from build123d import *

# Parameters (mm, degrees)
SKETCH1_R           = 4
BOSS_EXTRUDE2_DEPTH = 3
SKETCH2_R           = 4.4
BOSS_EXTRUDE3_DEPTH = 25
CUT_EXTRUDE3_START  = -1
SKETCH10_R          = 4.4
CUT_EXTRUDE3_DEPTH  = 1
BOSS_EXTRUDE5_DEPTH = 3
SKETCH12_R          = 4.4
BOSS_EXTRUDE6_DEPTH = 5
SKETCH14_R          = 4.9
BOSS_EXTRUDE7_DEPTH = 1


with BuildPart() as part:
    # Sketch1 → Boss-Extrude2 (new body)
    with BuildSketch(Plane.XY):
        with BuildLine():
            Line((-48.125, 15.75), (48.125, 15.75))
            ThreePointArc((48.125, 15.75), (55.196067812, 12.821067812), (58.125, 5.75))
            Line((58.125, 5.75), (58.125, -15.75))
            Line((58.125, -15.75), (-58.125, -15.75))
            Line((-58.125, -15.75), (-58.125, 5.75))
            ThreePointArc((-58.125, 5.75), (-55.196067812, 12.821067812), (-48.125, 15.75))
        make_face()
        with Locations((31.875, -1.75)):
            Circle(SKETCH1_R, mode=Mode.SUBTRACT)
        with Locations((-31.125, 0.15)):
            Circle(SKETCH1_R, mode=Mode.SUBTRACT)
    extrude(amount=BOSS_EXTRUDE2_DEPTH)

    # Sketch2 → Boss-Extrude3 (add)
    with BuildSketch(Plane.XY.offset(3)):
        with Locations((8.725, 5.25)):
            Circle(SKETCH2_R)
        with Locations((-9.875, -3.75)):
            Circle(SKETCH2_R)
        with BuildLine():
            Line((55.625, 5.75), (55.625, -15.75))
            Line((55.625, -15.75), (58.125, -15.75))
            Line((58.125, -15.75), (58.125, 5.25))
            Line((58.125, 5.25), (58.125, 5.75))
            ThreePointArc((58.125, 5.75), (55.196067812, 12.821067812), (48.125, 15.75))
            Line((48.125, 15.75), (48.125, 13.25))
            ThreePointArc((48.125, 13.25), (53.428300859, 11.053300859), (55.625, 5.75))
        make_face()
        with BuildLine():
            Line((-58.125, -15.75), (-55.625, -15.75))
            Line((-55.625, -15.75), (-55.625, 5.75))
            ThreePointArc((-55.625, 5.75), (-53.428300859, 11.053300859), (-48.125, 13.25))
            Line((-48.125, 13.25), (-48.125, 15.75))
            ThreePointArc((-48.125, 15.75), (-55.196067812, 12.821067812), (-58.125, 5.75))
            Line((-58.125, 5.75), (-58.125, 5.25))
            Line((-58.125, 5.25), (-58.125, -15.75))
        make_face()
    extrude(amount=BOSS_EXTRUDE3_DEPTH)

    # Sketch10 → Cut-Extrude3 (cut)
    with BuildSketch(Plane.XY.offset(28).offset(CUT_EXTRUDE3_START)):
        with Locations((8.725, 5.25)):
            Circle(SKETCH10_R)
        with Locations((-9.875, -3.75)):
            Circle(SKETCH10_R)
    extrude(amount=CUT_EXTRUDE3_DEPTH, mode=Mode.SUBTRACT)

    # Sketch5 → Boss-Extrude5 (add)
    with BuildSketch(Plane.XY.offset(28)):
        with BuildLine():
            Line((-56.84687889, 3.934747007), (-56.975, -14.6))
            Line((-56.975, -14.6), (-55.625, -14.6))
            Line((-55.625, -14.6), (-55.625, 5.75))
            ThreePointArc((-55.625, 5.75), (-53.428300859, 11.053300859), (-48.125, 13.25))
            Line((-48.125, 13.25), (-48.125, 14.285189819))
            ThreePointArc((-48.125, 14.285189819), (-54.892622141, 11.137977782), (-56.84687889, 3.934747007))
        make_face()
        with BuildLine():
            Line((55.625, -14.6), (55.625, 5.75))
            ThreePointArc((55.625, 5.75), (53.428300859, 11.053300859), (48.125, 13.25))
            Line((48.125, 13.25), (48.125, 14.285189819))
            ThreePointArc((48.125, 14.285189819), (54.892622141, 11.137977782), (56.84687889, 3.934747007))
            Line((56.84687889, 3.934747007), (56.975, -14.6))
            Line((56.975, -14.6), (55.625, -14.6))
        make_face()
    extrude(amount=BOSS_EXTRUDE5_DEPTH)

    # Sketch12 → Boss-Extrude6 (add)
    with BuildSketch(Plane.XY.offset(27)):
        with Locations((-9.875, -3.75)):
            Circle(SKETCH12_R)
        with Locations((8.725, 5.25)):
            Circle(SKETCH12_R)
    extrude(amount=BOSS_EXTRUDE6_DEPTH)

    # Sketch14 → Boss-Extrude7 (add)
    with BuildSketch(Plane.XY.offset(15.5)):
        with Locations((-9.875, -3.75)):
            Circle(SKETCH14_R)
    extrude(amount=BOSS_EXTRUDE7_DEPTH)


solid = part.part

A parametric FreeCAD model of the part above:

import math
import FreeCAD as App
import Part
import Sketcher
from FreeCAD import Vector
Q = App.Units.Quantity

doc = App.newDocument("Part")
body = doc.addObject("PartDesign::Body", "Body")

sketch1 = doc.addObject("Sketcher::SketchObject", "Sketch")
body.addObject(sketch1)
sketch1.AttachmentSupport = (doc.XY_Plane, [""])
sketch1.MapMode = "FlatFace"
sketch1.addGeometry([
    Part.LineSegment(Vector(48.125, 15.75, 0), Vector(-48.125, 15.75, 0)),
    Part.ArcOfCircle(Part.Circle(Vector(-48.125, 5.75, 0), Vector(0, 0, 1), 10), math.radians(90), math.radians(180)),
    Part.LineSegment(Vector(-58.125, 5.75, 0), Vector(-58.125, -15.75, 0)),
    Part.LineSegment(Vector(-58.125, -15.75, 0), Vector(58.125, -15.75, 0)),
    Part.LineSegment(Vector(58.125, -15.75, 0), Vector(58.125, 5.75, 0)),
    Part.ArcOfCircle(Part.Circle(Vector(48.125, 5.75, 0), Vector(0, 0, 1), 10), math.radians(0), math.radians(90)),
    Part.Circle(Vector(31.875, -1.75, 0), Vector(0, 0, 1), 4),
    Part.Circle(Vector(-31.125, 0.15, 0), Vector(0, 0, 1), 4),
], False)
sketch1.addConstraint([
    Sketcher.Constraint("Tangent", 0, 2, 1, 1),
    Sketcher.Constraint("Tangent", 1, 2, 2, 1),
    Sketcher.Constraint("Coincident", 2, 2, 3, 1),
    Sketcher.Constraint("Coincident", 3, 2, 4, 1),
    Sketcher.Constraint("Tangent", 4, 2, 5, 1),
    Sketcher.Constraint("Tangent", 5, 2, 0, 1),
    Sketcher.Constraint("Horizontal", 0),
    Sketcher.Constraint("Vertical", 2),
    Sketcher.Constraint("Horizontal", 3),
    Sketcher.Constraint("Vertical", 4),
    Sketcher.Constraint("Equal", 1, 5),
    Sketcher.Constraint("Equal", 6, 7),
    Sketcher.Constraint("Diameter", 6, Q("8 mm")),
    Sketcher.Constraint("Radius", 1, Q("10 mm")),
    Sketcher.Constraint("DistanceY", 2, 2, 2, 1, Q("21.5 mm")),
    Sketcher.Constraint("DistanceX", 1, 3, 6, 3, Q("80 mm")),
    Sketcher.Constraint("DistanceX", 1, 3, 7, 3, Q("17 mm")),
    Sketcher.Constraint("DistanceY", 2, 2, 6, 3, Q("14 mm")),
    Sketcher.Constraint("DistanceX", 0, 2, 0, 1, Q("96.25 mm")),
    Sketcher.Constraint("DistanceY", 7, 3, 1, 3, Q("5.6 mm")),
    Sketcher.Constraint("DistanceY", -1, 1, 1, 3, Q("5.75 mm")),
    Sketcher.Constraint("DistanceX", 1, 3, -1, 1, Q("48.125 mm")),
])
pad1 = doc.addObject("PartDesign::Pad", "Pad")
body.addObject(pad1)
pad1.Profile = sketch1
pad1.Length = 3

sketch2 = doc.addObject("Sketcher::SketchObject", "Sketch001")
body.addObject(sketch2)
sketch2.AttachmentSupport = (doc.XY_Plane, [""])
sketch2.MapMode = "FlatFace"
sketch2.AttachmentOffset = App.Placement(Vector(0, 0, 3), App.Rotation())
sketch2.addGeometry([
    Part.Circle(Vector(8.725, 5.25, 0), Vector(0, 0, 1), 4.4),
    Part.Circle(Vector(-9.875, -3.75, 0), Vector(0, 0, 1), 4.4),
    Part.LineSegment(Vector(55.625, 5.75, 0), Vector(55.625, -15.75, 0)),
    Part.LineSegment(Vector(55.625, -15.75, 0), Vector(58.125, -15.75, 0)),
    Part.LineSegment(Vector(58.125, -15.75, 0), Vector(58.125, 5.75, 0)),
    Part.ArcOfCircle(Part.Circle(Vector(48.125, 5.75, 0), Vector(0, 0, 1), 10), math.radians(0), math.radians(90)),
    Part.LineSegment(Vector(48.125, 15.75, 0), Vector(48.125, 13.25, 0)),
    Part.ArcOfCircle(Part.Circle(Vector(48.125, 5.75, 0), Vector(0, 0, 1), 7.5), math.radians(0), math.radians(90)),
    Part.LineSegment(Vector(-58.125, -15.75, 0), Vector(-55.625, -15.75, 0)),
    Part.LineSegment(Vector(-55.625, -15.75, 0), Vector(-55.625, 5.75, 0)),
    Part.ArcOfCircle(Part.Circle(Vector(-48.125, 5.75, 0), Vector(0, 0, 1), 7.5), math.radians(90), math.radians(180)),
    Part.LineSegment(Vector(-48.125, 13.25, 0), Vector(-48.125, 15.75, 0)),
    Part.ArcOfCircle(Part.Circle(Vector(-48.125, 5.75, 0), Vector(0, 0, 1), 10), math.radians(90), math.radians(180)),
    Part.LineSegment(Vector(-58.125, 5.75, 0), Vector(-58.125, -15.75, 0)),
], False)
sketch2.addConstraint([
    Sketcher.Constraint("Coincident", 2, 2, 3, 1),
    Sketcher.Constraint("Coincident", 3, 2, 4, 1),
    Sketcher.Constraint("Tangent", 4, 2, 5, 1),
    Sketcher.Constraint("Coincident", 5, 2, 6, 1),
    Sketcher.Constraint("Coincident", 6, 2, 7, 2),
    Sketcher.Constraint("Tangent", 7, 1, 2, 1),
    Sketcher.Constraint("Coincident", 8, 2, 9, 1),
    Sketcher.Constraint("Tangent", 9, 2, 10, 2),
    Sketcher.Constraint("Coincident", 10, 1, 11, 1),
    Sketcher.Constraint("Coincident", 11, 2, 12, 1),
    Sketcher.Constraint("Tangent", 12, 2, 13, 1),
    Sketcher.Constraint("Coincident", 13, 2, 8, 1),
    Sketcher.Constraint("Vertical", 2),
    Sketcher.Constraint("Horizontal", 3),
    Sketcher.Constraint("Vertical", 4),
    Sketcher.Constraint("Vertical", 6),
    Sketcher.Constraint("Horizontal", 8),
    Sketcher.Constraint("Vertical", 9),
    Sketcher.Constraint("Vertical", 11),
    Sketcher.Constraint("Vertical", 13),
    Sketcher.Constraint("Coincident", 7, 3, 5, 3),
    Sketcher.Constraint("Coincident", 12, 3, 10, 3),
    Sketcher.Constraint("Equal", 0, 1),
    Sketcher.Constraint("Equal", 7, 10),
    Sketcher.Constraint("Equal", 5, 12),
    Sketcher.Constraint("Symmetric", 5, 3, 10, 3, -2),
    Sketcher.Constraint("Horizontal", 3, 2, 8, 2),
    Sketcher.Constraint("Vertical", 7, 3, 5, 2),
    Sketcher.Constraint("Vertical", 12, 3, 10, 1),
    Sketcher.Constraint("Radius", 5, Q("10 mm")),
    Sketcher.Constraint("Diameter", 0, Q("8.8 mm")),
    Sketcher.Constraint("Radius", 7, Q("7.5 mm")),
    Sketcher.Constraint("DistanceY", 2, 2, 2, 1, Q("21.5 mm")),
    Sketcher.Constraint("DistanceY", 1, 3, 0, 3, Q("9 mm")),
    Sketcher.Constraint("DistanceX", 1, 3, 5, 3, Q("58 mm")),
    Sketcher.Constraint("DistanceY", 2, 2, 0, 3, Q("21 mm")),
    Sketcher.Constraint("DistanceX", 1, 3, 0, 3, Q("18.6 mm")),
    Sketcher.Constraint("DistanceY", -1, 1, 0, 3, Q("5.25 mm")),
    Sketcher.Constraint("DistanceX", 10, 3, 1, 3, Q("38.25 mm")),
])
pad2 = doc.addObject("PartDesign::Pad", "Pad001")
body.addObject(pad2)
pad2.Profile = sketch2
pad2.Length = 25

sketch3 = doc.addObject("Sketcher::SketchObject", "Sketch002")
body.addObject(sketch3)
sketch3.AttachmentSupport = (doc.XY_Plane, [""])
sketch3.MapMode = "FlatFace"
sketch3.AttachmentOffset = App.Placement(Vector(0, 0, 27), App.Rotation())
sketch3.addGeometry([
    Part.Circle(Vector(8.725, 5.25, 0), Vector(0, 0, 1), 4.4),
    Part.Circle(Vector(-9.875, -3.75, 0), Vector(0, 0, 1), 4.4),
], False)
sketch3.addConstraint([
    Sketcher.Constraint("Equal", 0, 1),
    Sketcher.Constraint("Diameter", 0, Q("8.8 mm")),
    Sketcher.Constraint("DistanceY", 1, 3, 0, 3, Q("9 mm")),
    Sketcher.Constraint("DistanceX", 1, 3, 0, 3, Q("18.6 mm")),
    Sketcher.Constraint("DistanceY", -1, 1, 0, 3, Q("5.25 mm")),
    Sketcher.Constraint("DistanceX", -1, 1, 0, 3, Q("8.725 mm")),
])
pocket1 = doc.addObject("PartDesign::Pocket", "Pocket")
body.addObject(pocket1)
pocket1.Profile = sketch3
pocket1.Length = 1
pocket1.Reversed = True

sketch4 = doc.addObject("Sketcher::SketchObject", "Sketch003")
body.addObject(sketch4)
sketch4.AttachmentSupport = (doc.XY_Plane, [""])
sketch4.MapMode = "FlatFace"
sketch4.AttachmentOffset = App.Placement(Vector(0, 0, 28), App.Rotation())
sketch4.addGeometry([
    Part.LineSegment(Vector(-56.846879, 3.934747, 0), Vector(-56.975, -14.6, 0)),
    Part.LineSegment(Vector(-56.975, -14.6, 0), Vector(-55.625, -14.6, 0)),
    Part.LineSegment(Vector(-55.625, -14.6, 0), Vector(-55.625, 5.75, 0)),
    Part.ArcOfCircle(Part.Circle(Vector(-48.125, 5.75, 0), Vector(0, 0, 1), 7.5), math.radians(90), math.radians(180)),
    Part.LineSegment(Vector(-48.125, 13.25, 0), Vector(-48.125, 14.28519, 0)),
    Part.ArcOfCircle(Part.Circle(Vector(-48.125, 5.43519, 0), Vector(0, 0, 1), 8.85), math.radians(90), math.radians(189.761165)),
    Part.LineSegment(Vector(55.625, 5.75, 0), Vector(55.625, -14.6, 0)),
    Part.LineSegment(Vector(55.625, -14.6, 0), Vector(56.975, -14.6, 0)),
    Part.LineSegment(Vector(56.975, -14.6, 0), Vector(56.846879, 3.934747, 0)),
    Part.ArcOfCircle(Part.Circle(Vector(48.125, 5.43519, 0), Vector(0, 0, 1), 8.85), math.radians(-9.761165), math.radians(90)),
    Part.LineSegment(Vector(48.125, 14.28519, 0), Vector(48.125, 13.25, 0)),
    Part.ArcOfCircle(Part.Circle(Vector(48.125, 5.75, 0), Vector(0, 0, 1), 7.5), math.radians(0), math.radians(90)),
], False)
sketch4.addConstraint([
    Sketcher.Constraint("Coincident", 0, 2, 1, 1),
    Sketcher.Constraint("Coincident", 1, 2, 2, 1),
    Sketcher.Constraint("Tangent", 2, 2, 3, 2),
    Sketcher.Constraint("Coincident", 3, 1, 4, 1),
    Sketcher.Constraint("Coincident", 4, 2, 5, 1),
    Sketcher.Constraint("Coincident", 5, 2, 0, 1),
    Sketcher.Constraint("Coincident", 6, 2, 7, 1),
    Sketcher.Constraint("Coincident", 7, 2, 8, 1),
    Sketcher.Constraint("Coincident", 8, 2, 9, 1),
    Sketcher.Constraint("Coincident", 9, 2, 10, 1),
    Sketcher.Constraint("Coincident", 10, 2, 11, 2),
    Sketcher.Constraint("Tangent", 11, 1, 6, 1),
    Sketcher.Constraint("Horizontal", 1),
    Sketcher.Constraint("Vertical", 2),
    Sketcher.Constraint("Vertical", 4),
    Sketcher.Constraint("Vertical", 6),
    Sketcher.Constraint("Horizontal", 7),
    Sketcher.Constraint("Vertical", 10),
    Sketcher.Constraint("Equal", 5, 9),
    Sketcher.Constraint("Equal", 3, 11),
    Sketcher.Constraint("Symmetric", 5, 3, 9, 3, -2),
    Sketcher.Constraint("Symmetric", 3, 3, 11, 3, -2),
    Sketcher.Constraint("Symmetric", 0, 2, 7, 2, -2),
    Sketcher.Constraint("Horizontal", 5, 2, 8, 2),
    Sketcher.Constraint("Vertical", 3, 3, 5, 3),
    Sketcher.Constraint("Vertical", 5, 3, 3, 1),
    Sketcher.Constraint("Vertical", 11, 3, 9, 2),
    Sketcher.Constraint("Radius", 3, Q("7.5 mm")),
    Sketcher.Constraint("Radius", 5, Q("8.85 mm")),
    Sketcher.Constraint("DistanceX", 1, 1, 1, 2, Q("1.35 mm")),
    Sketcher.Constraint("DistanceY", 2, 1, 2, 2, Q("20.35 mm")),
    Sketcher.Constraint("DistanceY", 0, 2, -1, 1, Q("14.6 mm")),
    Sketcher.Constraint("DistanceX", 0, 2, 9, 3, Q("105.1 mm")),
    Sketcher.Constraint("DistanceY", 4, 1, 4, 2, Q("1.03519 mm")),
    Sketcher.Constraint("Distance", 0, Q("18.53519 mm")),
])
pad3 = doc.addObject("PartDesign::Pad", "Pad002")
body.addObject(pad3)
pad3.Profile = sketch4
pad3.Length = 3

sketch5 = doc.addObject("Sketcher::SketchObject", "Sketch004")
body.addObject(sketch5)
sketch5.AttachmentSupport = (doc.XY_Plane, [""])
sketch5.MapMode = "FlatFace"
sketch5.AttachmentOffset = App.Placement(Vector(0, 0, 27), App.Rotation())
sketch5.addGeometry([
    Part.Circle(Vector(-9.875, -3.75, 0), Vector(0, 0, 1), 4.4),
    Part.Circle(Vector(8.725, 5.25, 0), Vector(0, 0, 1), 4.4),
], False)
sketch5.addConstraint([
    Sketcher.Constraint("Equal", 0, 1),
    Sketcher.Constraint("Diameter", 0, Q("8.8 mm")),
    Sketcher.Constraint("DistanceY", 0, 3, 1, 3, Q("9 mm")),
    Sketcher.Constraint("DistanceX", 0, 3, 1, 3, Q("18.6 mm")),
    Sketcher.Constraint("DistanceY", 0, 3, -1, 1, Q("3.75 mm")),
    Sketcher.Constraint("DistanceX", 0, 3, -1, 1, Q("9.875 mm")),
])
pad4 = doc.addObject("PartDesign::Pad", "Pad003")
body.addObject(pad4)
pad4.Profile = sketch5
pad4.Length = 5

sketch6 = doc.addObject("Sketcher::SketchObject", "Sketch005")
body.addObject(sketch6)
sketch6.AttachmentSupport = (doc.XY_Plane, [""])
sketch6.MapMode = "FlatFace"
sketch6.AttachmentOffset = App.Placement(Vector(0, 0, 15.5), App.Rotation())
sketch6.addGeometry(Part.Circle(Vector(-9.875, -3.75, 0), Vector(0, 0, 1), 4.9), False)
sketch6.addConstraint([
    Sketcher.Constraint("Diameter", 0, Q("9.8 mm")),
    Sketcher.Constraint("DistanceY", 0, 3, -1, 1, Q("3.75 mm")),
    Sketcher.Constraint("DistanceX", 0, 3, -1, 1, Q("9.875 mm")),
])
pad5 = doc.addObject("PartDesign::Pad", "Pad004")
body.addObject(pad5)
pad5.Profile = sketch6
pad5.Length = 1

doc.recompute()
